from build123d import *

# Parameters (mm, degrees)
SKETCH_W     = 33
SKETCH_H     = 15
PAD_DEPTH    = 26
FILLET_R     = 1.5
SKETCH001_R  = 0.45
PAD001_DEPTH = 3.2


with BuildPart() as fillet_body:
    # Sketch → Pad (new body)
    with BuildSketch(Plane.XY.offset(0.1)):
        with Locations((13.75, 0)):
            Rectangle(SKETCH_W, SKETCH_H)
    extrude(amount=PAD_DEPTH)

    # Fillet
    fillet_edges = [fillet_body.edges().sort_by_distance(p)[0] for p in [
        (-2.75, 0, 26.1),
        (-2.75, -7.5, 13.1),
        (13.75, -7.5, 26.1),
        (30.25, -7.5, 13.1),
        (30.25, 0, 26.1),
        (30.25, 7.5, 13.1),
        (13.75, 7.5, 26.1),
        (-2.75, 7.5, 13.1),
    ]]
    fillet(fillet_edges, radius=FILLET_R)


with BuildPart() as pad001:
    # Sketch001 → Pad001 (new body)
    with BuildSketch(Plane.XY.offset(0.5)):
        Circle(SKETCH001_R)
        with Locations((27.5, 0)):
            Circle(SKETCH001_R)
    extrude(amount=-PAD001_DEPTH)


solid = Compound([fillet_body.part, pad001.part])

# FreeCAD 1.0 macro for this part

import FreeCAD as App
import Part
import Sketcher


def edges_at(feature, points):
    """Names of the edges that pass closest to the given points."""
    edges = feature.Shape.Edges
    near = lambda p: min(range(len(edges)), key=lambda i: edges[i].distToShape(Part.Vertex(*p))[0])
    return sorted({f"Edge{near(p) + 1}" for p in points})

doc = App.newDocument("Part")
params = doc.addObject("Spreadsheet::Sheet", "Params")
for row, (alias, value) in enumerate([
    ("sketch1_width", "33 mm"),
    ("sketch1_height", "15 mm"),
    ("pad1_length", "26 mm"),
    ("fillet_radius", "1.5 mm"),
    ("sketch2_diameter", "0.9 mm"),
    ("pad2_length", "3.2 mm"),
], start=1):
    params.set(f"A{row}", alias)
    params.set(f"B{row}", "=" + value)
    params.setAlias(f"B{row}", alias)

body = doc.addObject("PartDesign::Body", "Body")

sketch1 = body.newObject("Sketcher::SketchObject", "Sketch")
sketch1.AttachmentSupport = (doc.getObject("XY_Plane"), [""])
sketch1.MapMode = "FlatFace"
sketch1.AttachmentOffset = App.Placement(App.Vector(0, 0, 0.1), App.Rotation())
sketch1.addGeometry([
    Part.LineSegment(App.Vector(-3, 8, 0), App.Vector(-3, -8, 0)),
    Part.LineSegment(App.Vector(-3, -8, 0), App.Vector(30, -8, 0)),
    Part.LineSegment(App.Vector(30, -8, 0), App.Vector(30, 8, 0)),
    Part.LineSegment(App.Vector(30, 8, 0), App.Vector(-3, 8, 0)),
], False)
sketch1.addConstraint([
    Sketcher.Constraint("Coincident", 0, 2, 1, 1),
    Sketcher.Constraint("Coincident", 1, 2, 2, 1),
    Sketcher.Constraint("Coincident", 2, 2, 3, 1),
    Sketcher.Constraint("Coincident", 3, 2, 0, 1),
    Sketcher.Constraint("Vertical", 0),
    Sketcher.Constraint("Horizontal", 1),
    Sketcher.Constraint("Vertical", 2),
    Sketcher.Constraint("Horizontal", 3),
    Sketcher.Constraint("DistanceX", 1, 1, 1, 2, 33.0),
    Sketcher.Constraint("DistanceY", 0, 2, 0, 1, 15.0),
    Sketcher.Constraint("DistanceY", 0, 2, -1, 1, 7.5),
    Sketcher.Constraint("DistanceX", 0, 2, -1, 1, 2.75),
])
sketch1.setExpression("Constraints[8]", "Params.sketch1_width")
sketch1.setExpression("Constraints[9]", "Params.sketch1_height")
pad1 = body.newObject("PartDesign::Pad", "Pad")
pad1.Profile = sketch1
pad1.setExpression("Length", "Params.pad1_length")
doc.recompute()

fillet = body.newObject("PartDesign::Fillet", "Fillet")
fillet.Base = (pad1, edges_at(pad1, [
    (-2.75, 0, 26.1),
    (-2.75, -7.5, 13.1),
    (13.75, -7.5, 26.1),
    (30.25, -7.5, 13.1),
    (30.25, 0, 26.1),
    (30.25, 7.5, 13.1),
    (13.75, 7.5, 26.1),
    (-2.75, 7.5, 13.1),
]))
fillet.setExpression("Radius", "Params.fillet_radius")
body2 = doc.addObject("PartDesign::Body", "Body001")
body2.AllowCompound = True

sketch2 = body2.newObject("Sketcher::SketchObject", "Sketch001")
sketch2.AttachmentSupport = (doc.getObject("XY_Plane001"), [""])
sketch2.MapMode = "FlatFace"
sketch2.AttachmentOffset = App.Placement(App.Vector(0, 0, 0.5), App.Rotation())
sketch2.addGeometry([
    Part.Circle(App.Vector(0, 0, 0), App.Vector(0, 0, 1), 0.45),
    Part.Circle(App.Vector(27.5, 0, 0), App.Vector(0, 0, 1), 0.45),
], False)
sketch2.addConstraint([
    Sketcher.Constraint("Coincident", 0, 3, -1, 1),
    Sketcher.Constraint("Equal", 0, 1),
    Sketcher.Constraint("PointOnObject", 1, 3, -1),
    Sketcher.Constraint("Diameter", 0, 0.9),
    Sketcher.Constraint("DistanceX", -1, 1, 1, 3, 27.5),
])
sketch2.setExpression("Constraints[3]", "Params.sketch2_diameter")
pad2 = body2.newObject("PartDesign::Pad", "Pad001")
pad2.Profile = sketch2
pad2.setExpression("Length", "Params.pad2_length")
pad2.Reversed = True

doc.recompute()
